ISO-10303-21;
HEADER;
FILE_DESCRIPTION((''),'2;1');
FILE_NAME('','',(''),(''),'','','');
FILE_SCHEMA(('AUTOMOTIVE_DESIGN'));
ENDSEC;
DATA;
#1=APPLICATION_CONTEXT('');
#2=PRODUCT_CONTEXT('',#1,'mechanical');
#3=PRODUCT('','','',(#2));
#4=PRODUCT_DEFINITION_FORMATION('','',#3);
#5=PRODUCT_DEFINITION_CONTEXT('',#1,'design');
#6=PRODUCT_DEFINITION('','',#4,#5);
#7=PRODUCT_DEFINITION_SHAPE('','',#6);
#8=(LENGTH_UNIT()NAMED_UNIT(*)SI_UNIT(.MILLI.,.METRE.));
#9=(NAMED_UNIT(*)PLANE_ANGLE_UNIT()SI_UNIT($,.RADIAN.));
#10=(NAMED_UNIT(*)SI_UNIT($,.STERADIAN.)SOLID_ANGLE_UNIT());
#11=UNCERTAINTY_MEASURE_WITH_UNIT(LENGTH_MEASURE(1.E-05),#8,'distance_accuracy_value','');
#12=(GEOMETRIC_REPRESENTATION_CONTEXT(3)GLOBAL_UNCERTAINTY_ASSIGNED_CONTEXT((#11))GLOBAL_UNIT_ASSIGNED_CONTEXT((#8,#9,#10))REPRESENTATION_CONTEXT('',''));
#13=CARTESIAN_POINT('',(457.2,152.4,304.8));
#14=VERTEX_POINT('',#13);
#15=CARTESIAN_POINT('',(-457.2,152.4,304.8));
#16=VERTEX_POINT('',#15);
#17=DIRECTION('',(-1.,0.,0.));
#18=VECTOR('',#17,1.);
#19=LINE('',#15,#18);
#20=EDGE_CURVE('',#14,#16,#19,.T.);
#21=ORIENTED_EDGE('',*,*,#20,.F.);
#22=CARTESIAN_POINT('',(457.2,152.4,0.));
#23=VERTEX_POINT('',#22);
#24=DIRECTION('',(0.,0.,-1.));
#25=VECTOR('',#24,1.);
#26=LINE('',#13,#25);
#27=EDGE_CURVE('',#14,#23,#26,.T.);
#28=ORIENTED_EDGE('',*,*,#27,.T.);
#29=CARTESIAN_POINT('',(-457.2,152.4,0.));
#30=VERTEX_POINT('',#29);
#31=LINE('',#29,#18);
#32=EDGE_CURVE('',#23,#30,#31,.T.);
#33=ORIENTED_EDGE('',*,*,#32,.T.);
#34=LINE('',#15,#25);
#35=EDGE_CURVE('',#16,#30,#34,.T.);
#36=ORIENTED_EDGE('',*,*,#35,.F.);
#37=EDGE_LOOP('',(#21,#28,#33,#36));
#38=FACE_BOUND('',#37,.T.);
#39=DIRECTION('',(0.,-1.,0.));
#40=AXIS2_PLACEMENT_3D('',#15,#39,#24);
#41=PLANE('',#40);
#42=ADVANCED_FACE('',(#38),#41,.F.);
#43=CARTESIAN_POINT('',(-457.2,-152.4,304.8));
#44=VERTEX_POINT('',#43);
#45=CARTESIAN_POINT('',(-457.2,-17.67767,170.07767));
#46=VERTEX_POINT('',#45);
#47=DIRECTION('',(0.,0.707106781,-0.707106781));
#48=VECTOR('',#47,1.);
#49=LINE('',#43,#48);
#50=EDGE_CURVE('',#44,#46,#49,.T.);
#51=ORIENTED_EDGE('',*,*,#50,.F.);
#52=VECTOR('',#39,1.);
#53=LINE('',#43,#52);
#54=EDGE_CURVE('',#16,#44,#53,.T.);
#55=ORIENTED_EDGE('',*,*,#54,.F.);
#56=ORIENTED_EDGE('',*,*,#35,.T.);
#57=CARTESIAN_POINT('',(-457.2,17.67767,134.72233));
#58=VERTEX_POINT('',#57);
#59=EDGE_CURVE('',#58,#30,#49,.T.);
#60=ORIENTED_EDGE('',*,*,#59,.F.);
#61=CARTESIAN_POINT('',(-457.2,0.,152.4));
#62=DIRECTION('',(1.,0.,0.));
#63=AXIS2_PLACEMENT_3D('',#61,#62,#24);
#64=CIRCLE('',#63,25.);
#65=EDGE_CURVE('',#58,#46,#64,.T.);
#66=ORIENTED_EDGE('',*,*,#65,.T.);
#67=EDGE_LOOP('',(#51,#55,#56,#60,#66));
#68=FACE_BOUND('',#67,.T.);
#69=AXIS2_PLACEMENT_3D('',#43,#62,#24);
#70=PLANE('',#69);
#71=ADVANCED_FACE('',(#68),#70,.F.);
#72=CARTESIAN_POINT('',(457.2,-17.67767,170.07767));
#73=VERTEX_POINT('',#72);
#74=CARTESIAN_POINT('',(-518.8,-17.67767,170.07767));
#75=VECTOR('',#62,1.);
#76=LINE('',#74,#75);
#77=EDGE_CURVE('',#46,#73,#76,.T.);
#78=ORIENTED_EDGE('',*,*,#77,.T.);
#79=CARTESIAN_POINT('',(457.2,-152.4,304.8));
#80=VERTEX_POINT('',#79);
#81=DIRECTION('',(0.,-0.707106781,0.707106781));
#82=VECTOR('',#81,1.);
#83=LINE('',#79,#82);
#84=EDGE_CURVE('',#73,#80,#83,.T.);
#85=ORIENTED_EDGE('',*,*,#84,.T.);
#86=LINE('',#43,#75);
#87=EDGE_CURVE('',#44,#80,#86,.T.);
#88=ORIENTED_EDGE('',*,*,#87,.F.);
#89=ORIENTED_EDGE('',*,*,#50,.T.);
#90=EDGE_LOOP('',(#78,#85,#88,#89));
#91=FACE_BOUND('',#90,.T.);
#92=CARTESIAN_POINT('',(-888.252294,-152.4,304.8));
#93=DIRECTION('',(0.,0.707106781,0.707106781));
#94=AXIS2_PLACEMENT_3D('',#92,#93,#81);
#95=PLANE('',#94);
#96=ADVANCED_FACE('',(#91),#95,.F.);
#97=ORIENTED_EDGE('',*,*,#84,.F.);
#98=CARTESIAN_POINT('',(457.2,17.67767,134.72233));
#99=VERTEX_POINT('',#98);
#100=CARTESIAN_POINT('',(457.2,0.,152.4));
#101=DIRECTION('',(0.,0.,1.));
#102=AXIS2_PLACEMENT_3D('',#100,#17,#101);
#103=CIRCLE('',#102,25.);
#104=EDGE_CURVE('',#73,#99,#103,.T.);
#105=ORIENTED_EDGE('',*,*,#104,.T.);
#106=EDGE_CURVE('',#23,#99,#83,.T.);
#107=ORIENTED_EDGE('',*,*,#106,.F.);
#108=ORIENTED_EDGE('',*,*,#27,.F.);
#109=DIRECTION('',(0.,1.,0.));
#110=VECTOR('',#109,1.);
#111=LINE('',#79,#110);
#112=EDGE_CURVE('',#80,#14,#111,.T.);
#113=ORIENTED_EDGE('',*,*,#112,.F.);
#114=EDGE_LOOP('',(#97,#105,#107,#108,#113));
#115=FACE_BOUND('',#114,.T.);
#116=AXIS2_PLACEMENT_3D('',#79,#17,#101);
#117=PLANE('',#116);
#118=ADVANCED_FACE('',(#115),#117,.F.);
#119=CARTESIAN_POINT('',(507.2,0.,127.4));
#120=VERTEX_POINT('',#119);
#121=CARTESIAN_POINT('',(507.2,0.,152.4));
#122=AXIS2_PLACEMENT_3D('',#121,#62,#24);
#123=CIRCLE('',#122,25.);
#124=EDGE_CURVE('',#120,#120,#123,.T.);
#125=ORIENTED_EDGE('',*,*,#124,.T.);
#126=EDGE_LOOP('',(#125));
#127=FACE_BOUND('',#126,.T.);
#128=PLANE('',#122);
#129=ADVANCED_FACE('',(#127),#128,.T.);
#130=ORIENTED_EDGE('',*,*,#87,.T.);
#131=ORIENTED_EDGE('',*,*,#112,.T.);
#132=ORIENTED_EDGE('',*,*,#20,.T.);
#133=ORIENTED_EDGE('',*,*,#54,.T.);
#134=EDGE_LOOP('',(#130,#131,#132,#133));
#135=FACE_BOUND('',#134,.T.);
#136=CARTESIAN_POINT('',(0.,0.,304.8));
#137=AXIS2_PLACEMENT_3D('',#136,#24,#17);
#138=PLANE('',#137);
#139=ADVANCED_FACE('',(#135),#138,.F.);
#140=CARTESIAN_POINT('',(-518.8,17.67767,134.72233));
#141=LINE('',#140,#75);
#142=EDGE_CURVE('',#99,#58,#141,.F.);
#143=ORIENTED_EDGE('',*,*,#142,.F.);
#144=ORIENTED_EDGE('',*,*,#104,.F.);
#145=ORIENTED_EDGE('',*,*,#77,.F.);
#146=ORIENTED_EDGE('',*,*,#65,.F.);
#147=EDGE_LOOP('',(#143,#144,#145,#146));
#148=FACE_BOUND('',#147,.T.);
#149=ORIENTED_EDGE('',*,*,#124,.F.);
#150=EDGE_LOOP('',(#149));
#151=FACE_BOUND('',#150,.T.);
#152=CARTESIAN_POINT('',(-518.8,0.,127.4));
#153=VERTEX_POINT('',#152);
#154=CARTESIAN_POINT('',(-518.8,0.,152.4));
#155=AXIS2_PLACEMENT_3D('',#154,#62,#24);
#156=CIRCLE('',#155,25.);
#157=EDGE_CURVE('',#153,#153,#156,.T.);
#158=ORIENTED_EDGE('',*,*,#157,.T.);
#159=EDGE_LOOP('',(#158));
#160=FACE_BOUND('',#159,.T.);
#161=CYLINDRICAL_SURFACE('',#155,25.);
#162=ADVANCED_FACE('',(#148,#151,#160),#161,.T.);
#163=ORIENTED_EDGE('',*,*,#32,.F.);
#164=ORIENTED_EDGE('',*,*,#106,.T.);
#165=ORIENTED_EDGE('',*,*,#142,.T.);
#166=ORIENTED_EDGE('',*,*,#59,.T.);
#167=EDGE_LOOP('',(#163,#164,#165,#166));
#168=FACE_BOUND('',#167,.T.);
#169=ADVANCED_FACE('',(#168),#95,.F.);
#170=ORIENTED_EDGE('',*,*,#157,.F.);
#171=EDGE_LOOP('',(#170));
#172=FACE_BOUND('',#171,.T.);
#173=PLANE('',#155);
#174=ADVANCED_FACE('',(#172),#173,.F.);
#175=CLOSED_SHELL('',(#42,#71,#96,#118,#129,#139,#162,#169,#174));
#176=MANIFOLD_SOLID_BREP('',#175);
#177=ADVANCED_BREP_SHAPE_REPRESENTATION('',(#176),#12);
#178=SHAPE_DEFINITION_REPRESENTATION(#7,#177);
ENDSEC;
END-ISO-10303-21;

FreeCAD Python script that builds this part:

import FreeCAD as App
import Part
import Sketcher

V = App.Vector
Q = App.Units.Quantity

doc = App.newDocument("Part")
body = doc.addObject("PartDesign::Body", "Body")

sketch1 = doc.addObject("Sketcher::SketchObject", "Sketch")
body.addObject(sketch1)
sketch1.AttachmentSupport = (doc.XY_Plane, [""])
sketch1.MapMode = "FlatFace"
sketch1.addGeometry(Part.LineSegment(V(-457.2, 152.4, 0), V(-457.2, -152.4, 0)), False)
sketch1.addGeometry(Part.LineSegment(V(-457.2, -152.4, 0), V(457.2, -152.4, 0)), False)
sketch1.addGeometry(Part.LineSegment(V(457.2, -152.4, 0), V(457.2, 152.4, 0)), False)
sketch1.addGeometry(Part.LineSegment(V(457.2, 152.4, 0), V(-457.2, 152.4, 0)), False)
sketch1.addConstraint(Sketcher.Constraint("Coincident", 0, 2, 1, 1))
sketch1.addConstraint(Sketcher.Constraint("Coincident", 1, 2, 2, 1))
sketch1.addConstraint(Sketcher.Constraint("Coincident", 2, 2, 3, 1))
sketch1.addConstraint(Sketcher.Constraint("Coincident", 3, 2, 0, 1))
sketch1.addConstraint(Sketcher.Constraint("Vertical", 0))
sketch1.addConstraint(Sketcher.Constraint("Horizontal", 1))
sketch1.addConstraint(Sketcher.Constraint("Vertical", 2))
sketch1.addConstraint(Sketcher.Constraint("Horizontal", 3))
sketch1.addConstraint(Sketcher.Constraint("Symmetric", 0, 2, 2, 2, -1, 1))
sketch1.addConstraint(Sketcher.Constraint("DistanceX", 1, 1, 1, 2, Q("36 in")))
sketch1.addConstraint(Sketcher.Constraint("DistanceY", 0, 2, 0, 1, Q("12 in")))
pad1 = doc.addObject("PartDesign::Pad", "Pad")
body.addObject(pad1)
pad1.Profile = sketch1
pad1.Length = Q("12 in")

sketch2 = doc.addObject("Sketcher::SketchObject", "Sketch001")
body.addObject(sketch2)
sketch2.AttachmentSupport = (doc.YZ_Plane, [""])
sketch2.MapMode = "FlatFace"
sketch2.AttachmentOffset = App.Placement(V(0, 0, 18 * 25.4), App.Rotation())
sketch2.addGeometry(Part.LineSegment(V(152.4, 0, 0), V(-152.4, 304.8, 0)), False)
sketch2.addGeometry(Part.LineSegment(V(-152.4, 304.8, 0), V(-152.4, 0, 0)), False)
sketch2.addGeometry(Part.LineSegment(V(-152.4, 0, 0), V(152.4, 0, 0)), False)
sketch2.addConstraint(Sketcher.Constraint("Coincident", 0, 2, 1, 1))
sketch2.addConstraint(Sketcher.Constraint("Coincident", 1, 2, 2, 1))
sketch2.addConstraint(Sketcher.Constraint("Coincident", 2, 2, 0, 1))
sketch2.addConstraint(Sketcher.Constraint("Vertical", 1))
sketch2.addConstraint(Sketcher.Constraint("Horizontal", 2))
sketch2.addConstraint(Sketcher.Constraint("Symmetric", 1, 2, 2, 2, -1, 1))
sketch2.addConstraint(Sketcher.Constraint("Equal", 2, 1))
sketch2.addConstraint(Sketcher.Constraint("DistanceX", 2, 1, 2, 2, Q("12 in")))
pocket1 = doc.addObject("PartDesign::Pocket", "Pocket")
body.addObject(pocket1)
pocket1.Profile = sketch2
pocket1.Length = Q("36 in")

sketch3 = doc.addObject("Sketcher::SketchObject", "Sketch002")
body.addObject(sketch3)
sketch3.AttachmentSupport = (doc.YZ_Plane, [""])
sketch3.MapMode = "FlatFace"
sketch3.AttachmentOffset = App.Placement(V(0, 0, 18 * 25.4), App.Rotation())
sketch3.addGeometry(Part.Circle(V(0, 152.4, 0), V(0, 0, 1), 25), False)
sketch3.addConstraint(Sketcher.Constraint("PointOnObject", 0, 3, -2))
sketch3.addConstraint(Sketcher.Constraint("DistanceY", -1, 1, 0, 3, Q("6 in")))
sketch3.addConstraint(Sketcher.Constraint("Diameter", 0, 50.0))
pad2 = doc.addObject("PartDesign::Pad", "Pad001")
body.addObject(pad2)
pad2.Profile = sketch3
pad2.Type = "TwoLengths"
pad2.Length = 50
pad2.Length2 = 976

doc.recompute()
